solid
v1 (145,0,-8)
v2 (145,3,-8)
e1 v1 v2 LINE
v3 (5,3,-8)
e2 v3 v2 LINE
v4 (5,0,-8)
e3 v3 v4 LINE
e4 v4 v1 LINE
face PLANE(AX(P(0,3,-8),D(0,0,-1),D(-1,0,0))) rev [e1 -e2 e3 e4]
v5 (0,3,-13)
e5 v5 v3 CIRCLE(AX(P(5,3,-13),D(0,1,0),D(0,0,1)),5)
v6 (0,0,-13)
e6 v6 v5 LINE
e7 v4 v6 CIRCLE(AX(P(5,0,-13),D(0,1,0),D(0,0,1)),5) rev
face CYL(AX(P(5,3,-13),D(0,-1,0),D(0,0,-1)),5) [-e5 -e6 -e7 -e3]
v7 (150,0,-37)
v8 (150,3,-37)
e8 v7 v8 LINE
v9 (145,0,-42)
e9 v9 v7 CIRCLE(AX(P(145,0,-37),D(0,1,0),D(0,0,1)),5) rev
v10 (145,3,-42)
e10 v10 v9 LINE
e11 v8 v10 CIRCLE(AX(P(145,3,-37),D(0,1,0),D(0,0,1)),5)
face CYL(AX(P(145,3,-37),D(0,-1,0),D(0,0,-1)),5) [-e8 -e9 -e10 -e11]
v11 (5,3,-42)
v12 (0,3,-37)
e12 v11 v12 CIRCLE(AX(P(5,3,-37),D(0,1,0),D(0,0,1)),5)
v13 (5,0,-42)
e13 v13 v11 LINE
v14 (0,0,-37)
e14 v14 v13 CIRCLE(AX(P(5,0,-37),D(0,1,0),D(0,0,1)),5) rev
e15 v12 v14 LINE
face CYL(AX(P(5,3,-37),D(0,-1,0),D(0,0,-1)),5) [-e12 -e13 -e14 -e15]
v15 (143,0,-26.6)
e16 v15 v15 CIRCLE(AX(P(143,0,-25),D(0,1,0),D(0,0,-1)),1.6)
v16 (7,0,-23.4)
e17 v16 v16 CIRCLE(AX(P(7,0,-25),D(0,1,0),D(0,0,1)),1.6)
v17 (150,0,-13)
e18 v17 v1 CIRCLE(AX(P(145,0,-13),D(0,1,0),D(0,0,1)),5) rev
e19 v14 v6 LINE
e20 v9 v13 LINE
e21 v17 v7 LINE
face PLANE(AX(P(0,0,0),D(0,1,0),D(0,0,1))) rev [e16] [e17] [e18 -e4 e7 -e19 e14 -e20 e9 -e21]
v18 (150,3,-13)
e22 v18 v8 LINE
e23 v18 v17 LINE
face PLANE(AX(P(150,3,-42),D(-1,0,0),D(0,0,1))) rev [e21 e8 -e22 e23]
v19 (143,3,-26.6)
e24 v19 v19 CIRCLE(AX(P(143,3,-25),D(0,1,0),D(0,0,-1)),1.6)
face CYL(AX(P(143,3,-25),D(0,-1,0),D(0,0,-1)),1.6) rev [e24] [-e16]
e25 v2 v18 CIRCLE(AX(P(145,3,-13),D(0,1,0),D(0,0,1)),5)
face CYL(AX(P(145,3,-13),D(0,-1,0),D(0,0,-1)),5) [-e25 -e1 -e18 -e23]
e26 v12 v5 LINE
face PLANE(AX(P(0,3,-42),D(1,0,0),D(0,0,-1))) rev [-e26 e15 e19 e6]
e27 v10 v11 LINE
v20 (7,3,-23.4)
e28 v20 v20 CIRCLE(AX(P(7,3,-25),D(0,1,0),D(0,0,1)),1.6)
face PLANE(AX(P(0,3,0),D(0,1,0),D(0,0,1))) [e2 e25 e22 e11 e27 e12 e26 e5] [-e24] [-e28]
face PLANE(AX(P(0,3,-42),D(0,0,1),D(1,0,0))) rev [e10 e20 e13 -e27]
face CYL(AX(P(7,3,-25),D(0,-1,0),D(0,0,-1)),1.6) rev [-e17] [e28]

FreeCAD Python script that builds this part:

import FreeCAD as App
import Part
import Sketcher

V = App.Vector
Q = App.Units.Quantity


def edges_at(feature, points):
    """Names of the edges that pass closest to the given points."""
    edges = feature.Shape.Edges
    near = lambda p: min(range(len(edges)), key=lambda i: edges[i].distToShape(Part.Vertex(*p))[0])
    return sorted({f"Edge{near(p) + 1}" for p in points})


def add_polygon(sketch, points):
    """Adds a closed chain of lines whose ends are joined by coincident constraints."""
    first, n = sketch.GeometryCount, len(points)
    for a, b in zip(points, points[1:] + points[:1]):
        sketch.addGeometry(Part.LineSegment(App.Vector(*a, 0), App.Vector(*b, 0)), False)
    for i in range(n):
        sketch.addConstraint(Sketcher.Constraint("Coincident", first + i, 2, first + (i + 1) % n, 1))

doc = App.newDocument("Part")
params = doc.addObject("Spreadsheet::Sheet", "Params")
for row, (alias, value) in enumerate([
    ("sketch1_diameter", "3.2 mm"),
    ("sketch1_width", "150 mm"),
    ("sketch1_height", "34 mm"),
    ("pad1_length", "3 mm"),
    ("fillet_radius", "5 mm"),
], start=1):
    params.set(f"A{row}", alias)
    params.set(f"B{row}", "=" + value)
    params.setAlias(f"B{row}", alias)

body = doc.addObject("PartDesign::Body", "Body")

# Sketch on XZ plane
sketch1 = body.newObject("Sketcher::SketchObject", "Sketch")
sketch1.AttachmentSupport = (doc.getObject("XZ_Plane"), [""])
sketch1.MapMode = "FlatFace"
add_polygon(sketch1, [(0, -42), (0, -8), (150, -8), (150, -42)])  # lines 0-3
sketch1.addGeometry(Part.Circle(V(7, -25, 0), V(0, 0, 1), 1.6), False)  # 4
sketch1.addGeometry(Part.Circle(V(143, -25, 0), V(0, 0, 1), 1.6), False)  # 5
sketch1.addConstraint([
    Sketcher.Constraint("Vertical", 0),
    Sketcher.Constraint("Horizontal", 1),
    Sketcher.Constraint("Vertical", 2),
    Sketcher.Constraint("Horizontal", 3),
    Sketcher.Constraint("Equal", 4, 5),
    Sketcher.Constraint("PointOnObject", 0, 2, -2),
    Sketcher.Constraint("Horizontal", 4, 3, 5, 3),
    Sketcher.Constraint("Diameter", 4, Q("3.2 mm")),
    Sketcher.Constraint("DistanceX", 1, 1, 1, 2, Q("150 mm")),
    Sketcher.Constraint("DistanceY", 0, 1, 0, 2, Q("34 mm")),
    Sketcher.Constraint("DistanceX", -1, 1, 4, 3, Q("7 mm")),
    Sketcher.Constraint("DistanceY", 4, 3, -1, 1, Q("25 mm")),
    Sketcher.Constraint("DistanceX", -1, 1, 5, 3, Q("143 mm")),
    Sketcher.Constraint("DistanceY", 0, 2, -1, 1, Q("8 mm")),
])
sketch1.setExpression("Constraints[11]", "Params.sketch1_diameter")
sketch1.setExpression("Constraints[12]", "Params.sketch1_width")
sketch1.setExpression("Constraints[13]", "Params.sketch1_height")
pad1 = body.newObject("PartDesign::Pad", "Pad")
pad1.Profile = sketch1
pad1.setExpression("Length", "Params.pad1_length")
pad1.Reversed = True
doc.recompute()

fillet = body.newObject("PartDesign::Fillet", "Fillet")
fillet.Base = (pad1, edges_at(pad1, [
    (0, 1.5, -42),
    (150, 1.5, -42),
    (150, 1.5, -8),
    (0, 1.5, -8),
]))
fillet.setExpression("Radius", "Params.fillet_radius")

doc.recompute()
